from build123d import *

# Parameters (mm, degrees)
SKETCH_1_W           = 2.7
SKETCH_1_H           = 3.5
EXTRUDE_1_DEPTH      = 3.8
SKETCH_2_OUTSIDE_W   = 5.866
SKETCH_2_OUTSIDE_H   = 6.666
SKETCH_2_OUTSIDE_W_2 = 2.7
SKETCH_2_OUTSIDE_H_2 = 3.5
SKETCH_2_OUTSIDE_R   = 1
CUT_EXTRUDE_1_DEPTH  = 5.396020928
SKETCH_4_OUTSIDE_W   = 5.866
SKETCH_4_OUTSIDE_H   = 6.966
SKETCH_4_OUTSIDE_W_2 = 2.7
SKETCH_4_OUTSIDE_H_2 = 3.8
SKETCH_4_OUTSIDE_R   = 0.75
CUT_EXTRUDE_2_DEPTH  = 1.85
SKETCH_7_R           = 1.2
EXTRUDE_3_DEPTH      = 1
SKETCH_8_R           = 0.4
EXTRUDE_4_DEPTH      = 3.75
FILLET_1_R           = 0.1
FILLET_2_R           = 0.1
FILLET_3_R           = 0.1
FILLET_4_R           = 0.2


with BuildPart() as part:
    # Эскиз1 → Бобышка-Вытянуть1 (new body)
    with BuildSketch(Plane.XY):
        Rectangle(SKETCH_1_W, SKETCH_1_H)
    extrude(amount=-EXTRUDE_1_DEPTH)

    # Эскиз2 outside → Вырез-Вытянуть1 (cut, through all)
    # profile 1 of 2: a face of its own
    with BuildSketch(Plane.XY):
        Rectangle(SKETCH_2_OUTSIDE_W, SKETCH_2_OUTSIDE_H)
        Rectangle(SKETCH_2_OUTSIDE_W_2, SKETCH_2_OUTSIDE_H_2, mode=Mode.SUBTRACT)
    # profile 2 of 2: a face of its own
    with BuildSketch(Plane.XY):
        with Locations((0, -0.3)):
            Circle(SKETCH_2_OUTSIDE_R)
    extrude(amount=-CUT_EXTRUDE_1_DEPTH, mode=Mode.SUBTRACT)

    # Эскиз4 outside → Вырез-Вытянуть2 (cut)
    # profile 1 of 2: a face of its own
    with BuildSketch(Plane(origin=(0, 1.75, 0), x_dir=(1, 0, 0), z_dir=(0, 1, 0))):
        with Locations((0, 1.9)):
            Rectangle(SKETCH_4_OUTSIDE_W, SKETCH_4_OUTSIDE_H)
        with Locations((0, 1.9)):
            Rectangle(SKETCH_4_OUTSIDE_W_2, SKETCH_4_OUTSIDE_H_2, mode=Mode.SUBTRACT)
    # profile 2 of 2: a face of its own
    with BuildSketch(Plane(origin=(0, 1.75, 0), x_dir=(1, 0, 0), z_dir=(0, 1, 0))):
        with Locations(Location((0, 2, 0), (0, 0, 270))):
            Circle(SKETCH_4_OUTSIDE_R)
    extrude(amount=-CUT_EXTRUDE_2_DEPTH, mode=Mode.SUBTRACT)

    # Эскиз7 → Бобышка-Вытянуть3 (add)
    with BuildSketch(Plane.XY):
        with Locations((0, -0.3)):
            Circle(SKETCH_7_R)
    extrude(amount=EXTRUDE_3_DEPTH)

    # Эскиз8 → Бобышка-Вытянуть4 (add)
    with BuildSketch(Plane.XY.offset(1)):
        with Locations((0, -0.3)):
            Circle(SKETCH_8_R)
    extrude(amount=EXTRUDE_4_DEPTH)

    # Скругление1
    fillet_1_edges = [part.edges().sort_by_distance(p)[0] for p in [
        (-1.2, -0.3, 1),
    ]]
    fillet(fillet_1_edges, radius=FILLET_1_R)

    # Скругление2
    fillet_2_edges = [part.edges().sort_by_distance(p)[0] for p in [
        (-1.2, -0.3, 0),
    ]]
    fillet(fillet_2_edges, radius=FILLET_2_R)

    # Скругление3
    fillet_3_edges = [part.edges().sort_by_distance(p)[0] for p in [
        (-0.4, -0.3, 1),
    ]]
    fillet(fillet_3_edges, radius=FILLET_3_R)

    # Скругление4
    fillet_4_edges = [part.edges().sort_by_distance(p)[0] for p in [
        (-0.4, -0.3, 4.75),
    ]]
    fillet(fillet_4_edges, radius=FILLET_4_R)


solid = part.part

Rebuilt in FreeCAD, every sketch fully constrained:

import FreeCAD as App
import Part
import Sketcher
from FreeCAD import Vector
Q = App.Units.Quantity


def edges_at(feature, points):
    """Names of the edges that pass closest to the given points."""
    edges = feature.Shape.Edges
    near = lambda p: min(range(len(edges)), key=lambda i: edges[i].distToShape(Part.Vertex(*p))[0])
    return sorted({f"Edge{near(p) + 1}" for p in points})


def add_polygon(sketch, points):
    """Adds a closed chain of lines whose ends are joined by coincident constraints."""
    first, n = sketch.GeometryCount, len(points)
    for a, b in zip(points, points[1:] + points[:1]):
        sketch.addGeometry(Part.LineSegment(App.Vector(*a, 0), App.Vector(*b, 0)), False)
    for i in range(n):
        sketch.addConstraint(Sketcher.Constraint("Coincident", first + i, 2, first + (i + 1) % n, 1))

doc = App.newDocument("Part")
body = doc.addObject("PartDesign::Body", "Body")

# Sketch on XY plane
sketch1 = body.newObject("Sketcher::SketchObject", "Sketch")
sketch1.AttachmentSupport = (doc.getObject("XY_Plane"), [""])
sketch1.MapMode = "FlatFace"
add_polygon(sketch1, [(-1.35, 1.75), (-1.35, -1.75), (1.35, -1.75), (1.35, 1.75)])  # lines 0-3
sketch1.addConstraint([
    Sketcher.Constraint("Vertical", 0),
    Sketcher.Constraint("Horizontal", 1),
    Sketcher.Constraint("Vertical", 2),
    Sketcher.Constraint("Horizontal", 3),
    Sketcher.Constraint("Symmetric", 0, 2, 2, 2, -1, 1),
    Sketcher.Constraint("DistanceX", 1, 1, 1, 2, Q("2.7 mm")),
    Sketcher.Constraint("DistanceY", 0, 2, 0, 1, Q("3.5 mm")),
])
pad1 = body.newObject("PartDesign::Pad", "Pad")
pad1.Profile = sketch1
pad1.Length = 3.8
pad1.Reversed = True

# Sketch on XY plane
sketch2 = body.newObject("Sketcher::SketchObject", "Sketch001")
sketch2.AttachmentSupport = (doc.getObject("XY_Plane"), [""])
sketch2.MapMode = "FlatFace"
add_polygon(sketch2, [(-2.933, 3.333), (-2.933, -3.333), (2.933, -3.333), (2.933, 3.333)])  # lines 0-3
add_polygon(sketch2, [(1.35, -1.75), (-1.35, -1.75), (-1.35, 1.75), (1.35, 1.75)])  # lines 4-7
sketch2.addGeometry(Part.Circle(Vector(0, -0.3, 0), Vector(0, 0, 1), 1), False)  # 8
sketch2.addConstraint([
    Sketcher.Constraint("Vertical", 0),
    Sketcher.Constraint("Horizontal", 1),
    Sketcher.Constraint("Vertical", 2),
    Sketcher.Constraint("Horizontal", 3),
    Sketcher.Constraint("Horizontal", 4),
    Sketcher.Constraint("Vertical", 5),
    Sketcher.Constraint("Horizontal", 6),
    Sketcher.Constraint("Vertical", 7),
    Sketcher.Constraint("Symmetric", 0, 2, 2, 2, -1, 1),
    Sketcher.Constraint("Symmetric", 4, 2, 6, 2, -1, 1),
    Sketcher.Constraint("PointOnObject", 8, 3, -2),
    Sketcher.Constraint("Diameter", 8, Q("2 mm")),
    Sketcher.Constraint("DistanceX", 4, 2, 4, 1, Q("2.7 mm")),
    Sketcher.Constraint("DistanceY", 5, 1, 5, 2, Q("3.5 mm")),
    Sketcher.Constraint("DistanceY", 8, 3, -1, 1, Q("0.3 mm")),
    Sketcher.Constraint("DistanceX", 1, 1, 1, 2, Q("5.866 mm")),
    Sketcher.Constraint("DistanceY", 0, 2, 0, 1, Q("6.666 mm")),
])
pocket1 = body.newObject("PartDesign::Pocket", "Pocket")
pocket1.Profile = sketch2
pocket1.Length = 5.396021

# Sketch on XZ plane
sketch3 = body.newObject("Sketcher::SketchObject", "Sketch002")
sketch3.AttachmentSupport = (doc.getObject("XZ_Plane"), [""])
sketch3.MapMode = "FlatFace"
sketch3.AttachmentOffset = App.Placement(Vector(0, 0, -1.75), App.Rotation())
add_polygon(sketch3, [(-2.933, -5.383), (-2.933, 1.583), (2.933, 1.583), (2.933, -5.383)])  # lines 0-3
add_polygon(sketch3, [(1.35, 0), (-1.35, 0), (-1.35, -3.8), (1.35, -3.8)])  # lines 4-7
sketch3.addGeometry(Part.Circle(Vector(0, -2, 0), Vector(0, 0, 1), 0.75), False)  # 8
sketch3.addConstraint([
    Sketcher.Constraint("Vertical", 0),
    Sketcher.Constraint("Horizontal", 1),
    Sketcher.Constraint("Vertical", 2),
    Sketcher.Constraint("Horizontal", 3),
    Sketcher.Constraint("Horizontal", 4),
    Sketcher.Constraint("Vertical", 5),
    Sketcher.Constraint("Horizontal", 6),
    Sketcher.Constraint("Vertical", 7),
    Sketcher.Constraint("Symmetric", 4, 2, 7, 2, -1, 1),
    Sketcher.Constraint("PointOnObject", 8, 3, -2),
    Sketcher.Constraint("Diameter", 8, Q("1.5 mm")),
    Sketcher.Constraint("DistanceX", 4, 2, 4, 1, Q("2.7 mm")),
    Sketcher.Constraint("DistanceY", 5, 2, 5, 1, Q("3.8 mm")),
    Sketcher.Constraint("DistanceY", 8, 3, -1, 1, Q("2 mm")),
    Sketcher.Constraint("DistanceX", 1, 1, 1, 2, Q("5.866 mm")),
    Sketcher.Constraint("DistanceY", 0, 1, 0, 2, Q("6.966 mm")),
    Sketcher.Constraint("DistanceX", 0, 2, -1, 1, Q("2.933 mm")),
    Sketcher.Constraint("DistanceY", -1, 1, 0, 2, Q("1.583 mm")),
])
pocket2 = body.newObject("PartDesign::Pocket", "Pocket001")
pocket2.Profile = sketch3
pocket2.Length = 1.85
pocket2.Reversed = True

# Sketch on XY plane
sketch4 = body.newObject("Sketcher::SketchObject", "Sketch003")
sketch4.AttachmentSupport = (doc.getObject("XY_Plane"), [""])
sketch4.MapMode = "FlatFace"
sketch4.addGeometry(Part.Circle(Vector(0, -0.3, 0), Vector(0, 0, 1), 1.2), False)
sketch4.addConstraint([
    Sketcher.Constraint("PointOnObject", 0, 3, -2),
    Sketcher.Constraint("Diameter", 0, Q("2.4 mm")),
    Sketcher.Constraint("DistanceY", 0, 3, -1, 1, Q("0.3 mm")),
])
pad2 = body.newObject("PartDesign::Pad", "Pad001")
pad2.Profile = sketch4
pad2.Length = 1

# Sketch on XY plane
sketch5 = body.newObject("Sketcher::SketchObject", "Sketch004")
sketch5.AttachmentSupport = (doc.getObject("XY_Plane"), [""])
sketch5.MapMode = "FlatFace"
sketch5.AttachmentOffset = App.Placement(Vector(0, 0, 1), App.Rotation())
sketch5.addGeometry(Part.Circle(Vector(0, -0.3, 0), Vector(0, 0, 1), 0.4), False)
sketch5.addConstraint([
    Sketcher.Constraint("PointOnObject", 0, 3, -2),
    Sketcher.Constraint("Diameter", 0, Q("0.8 mm")),
    Sketcher.Constraint("DistanceY", 0, 3, -1, 1, Q("0.3 mm")),
])
pad3 = body.newObject("PartDesign::Pad", "Pad002")
pad3.Profile = sketch5
pad3.Length = 3.75
doc.recompute()

fillet = body.newObject("PartDesign::Fillet", "Fillet")
fillet.Base = (pad3, edges_at(pad3, [(-1.2, -0.3, 1)]))
fillet.Radius = 0.1
doc.recompute()

fillet2 = body.newObject("PartDesign::Fillet", "Fillet001")
fillet2.Base = (fillet, edges_at(fillet, [(-1.2, -0.3, 0)]))
fillet2.Radius = 0.1
doc.recompute()

fillet3 = body.newObject("PartDesign::Fillet", "Fillet002")
fillet3.Base = (fillet2, edges_at(fillet2, [(-0.4, -0.3, 1)]))
fillet3.Radius = 0.1
doc.recompute()

fillet4 = body.newObject("PartDesign::Fillet", "Fillet003")
fillet4.Base = (fillet3, edges_at(fillet3, [(-0.4, -0.3, 4.75)]))
fillet4.Radius = 0.2

doc.recompute()
